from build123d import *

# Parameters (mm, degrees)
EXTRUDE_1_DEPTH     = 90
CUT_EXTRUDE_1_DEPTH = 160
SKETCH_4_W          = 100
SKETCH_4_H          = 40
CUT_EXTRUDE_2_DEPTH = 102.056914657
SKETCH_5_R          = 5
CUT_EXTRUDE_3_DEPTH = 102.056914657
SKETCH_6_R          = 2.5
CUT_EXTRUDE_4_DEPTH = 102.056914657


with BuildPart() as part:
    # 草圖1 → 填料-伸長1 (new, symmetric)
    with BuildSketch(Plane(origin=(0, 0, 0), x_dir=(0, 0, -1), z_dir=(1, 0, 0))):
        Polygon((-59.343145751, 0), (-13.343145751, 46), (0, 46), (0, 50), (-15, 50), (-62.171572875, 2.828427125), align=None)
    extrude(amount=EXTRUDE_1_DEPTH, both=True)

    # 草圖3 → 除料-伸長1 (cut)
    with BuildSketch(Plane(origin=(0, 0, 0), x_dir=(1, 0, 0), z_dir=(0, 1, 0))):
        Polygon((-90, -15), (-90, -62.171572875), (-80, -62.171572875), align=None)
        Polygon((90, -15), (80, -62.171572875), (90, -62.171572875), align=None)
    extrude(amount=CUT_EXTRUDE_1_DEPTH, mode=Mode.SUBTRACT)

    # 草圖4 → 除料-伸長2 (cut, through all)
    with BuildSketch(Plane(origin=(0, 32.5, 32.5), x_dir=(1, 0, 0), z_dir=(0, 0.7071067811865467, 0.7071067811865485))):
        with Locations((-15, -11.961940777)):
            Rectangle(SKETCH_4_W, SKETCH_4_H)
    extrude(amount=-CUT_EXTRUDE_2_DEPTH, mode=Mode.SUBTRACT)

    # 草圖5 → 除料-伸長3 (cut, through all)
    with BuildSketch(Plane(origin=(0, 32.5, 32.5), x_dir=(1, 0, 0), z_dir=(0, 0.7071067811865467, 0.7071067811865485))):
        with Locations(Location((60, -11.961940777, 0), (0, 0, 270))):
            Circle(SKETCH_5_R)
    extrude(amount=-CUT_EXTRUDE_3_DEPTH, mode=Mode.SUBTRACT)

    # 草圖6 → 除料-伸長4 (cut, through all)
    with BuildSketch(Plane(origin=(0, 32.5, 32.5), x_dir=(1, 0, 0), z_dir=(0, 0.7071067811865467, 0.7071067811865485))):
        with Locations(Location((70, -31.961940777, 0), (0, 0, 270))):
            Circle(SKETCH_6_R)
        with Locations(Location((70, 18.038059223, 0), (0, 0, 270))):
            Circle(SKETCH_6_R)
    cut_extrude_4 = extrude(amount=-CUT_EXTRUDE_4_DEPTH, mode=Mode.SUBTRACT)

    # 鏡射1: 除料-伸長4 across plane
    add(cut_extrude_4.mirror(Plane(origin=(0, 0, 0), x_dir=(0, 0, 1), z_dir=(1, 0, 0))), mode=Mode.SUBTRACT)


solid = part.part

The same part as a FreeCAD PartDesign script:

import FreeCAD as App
import Part
import Sketcher

V = App.Vector
Q = App.Units.Quantity


def add_polygon(sketch, points):
    """Adds a closed chain of lines whose ends are joined by coincident constraints."""
    first, n = sketch.GeometryCount, len(points)
    for a, b in zip(points, points[1:] + points[:1]):
        sketch.addGeometry(Part.LineSegment(App.Vector(*a, 0), App.Vector(*b, 0)), False)
    for i in range(n):
        sketch.addConstraint(Sketcher.Constraint("Coincident", first + i, 2, first + (i + 1) % n, 1))

doc = App.newDocument("Part")
params = doc.addObject("Spreadsheet::Sheet", "Params")
for row, (alias, value) in enumerate([
    ("sketch1_width", "4 mm"),
    ("sketch1_height", "15 mm"),
    ("sketch1_length", "4 mm"),
    ("pad1_length", "180 mm"),
    ("sketch2_width", "10 mm"),
    ("pocket1_length", "160 mm"),
    ("sketch3_width", "100 mm"),
    ("sketch3_height", "40 mm"),
    ("sketch4_diameter", "10 mm"),
    ("sketch5_diameter", "5 mm"),
], start=1):
    params.set(f"A{row}", alias)
    params.set(f"B{row}", "=" + value)
    params.setAlias(f"B{row}", alias)

body = doc.addObject("PartDesign::Body", "Body")

# Sketch on YZ plane
sketch1 = body.newObject("Sketcher::SketchObject", "Sketch")
sketch1.AttachmentSupport = (doc.getObject("YZ_Plane"), [""])
sketch1.MapMode = "FlatFace"
add_polygon(sketch1, [(0, 59.3), (46, 13.3), (46, 0), (50, 0), (50, 15), (2.8, 62.2)])  # lines 0-5
sketch1.addConstraint([
    Sketcher.Constraint("Vertical", 1),
    Sketcher.Constraint("Horizontal", 2),
    Sketcher.Constraint("Vertical", 3),
    Sketcher.Constraint("PointOnObject", 1, 2, -1),
    Sketcher.Constraint("PointOnObject", 5, 2, -2),
    Sketcher.Constraint("Parallel", 0, 4),
    Sketcher.Constraint("Perpendicular", 4, 5),
    Sketcher.Constraint("DistanceX", 2, 1, 2, 2, Q("4 mm")),
    Sketcher.Constraint("DistanceY", 3, 1, 3, 2, Q("15 mm")),
    Sketcher.Constraint("Angle", 0, Q("-45 deg")),
    Sketcher.Constraint("Distance", 5, Q("4 mm")),
    Sketcher.Constraint("DistanceX", -1, 1, 0, 2, Q("46 mm")),
])
sketch1.setExpression("Constraints[13]", "Params.sketch1_width")
sketch1.setExpression("Constraints[14]", "Params.sketch1_height")
sketch1.setExpression("Constraints[16]", "Params.sketch1_length")
pad1 = body.newObject("PartDesign::Pad", "Pad")
pad1.Profile = sketch1
pad1.setExpression("Length", "Params.pad1_length")
pad1.Midplane = True

# Sketch on XZ plane
sketch2 = body.newObject("Sketcher::SketchObject", "Sketch001")
sketch2.AttachmentSupport = (doc.getObject("XZ_Plane"), [""])
sketch2.MapMode = "FlatFace"
add_polygon(sketch2, [(-90, 15), (-90, 62), (-80, 62)])  # lines 0-2
add_polygon(sketch2, [(90, 15), (80, 62), (90, 62)])  # lines 3-5
sketch2.addConstraint([
    Sketcher.Constraint("Vertical", 0),
    Sketcher.Constraint("Horizontal", 1),
    Sketcher.Constraint("Horizontal", 4),
    Sketcher.Constraint("Vertical", 5),
    Sketcher.Constraint("Symmetric", 1, 2, 3, 2, -2),
    Sketcher.Constraint("Symmetric", 2, 2, 5, 2, -2),
    Sketcher.Constraint("DistanceX", 1, 1, 1, 2, Q("10 mm")),
    Sketcher.Constraint("DistanceX", 0, 2, -1, 1, Q("90 mm")),
    Sketcher.Constraint("DistanceY", -1, 1, 2, 2, Q("15 mm")),
    Sketcher.Constraint("DistanceY", 0, 1, 0, 2, Q("47.171573 mm")),
])
sketch2.setExpression("Constraints[12]", "Params.sketch2_width")
pocket1 = body.newObject("PartDesign::Pocket", "Pocket")
pocket1.Profile = sketch2
pocket1.setExpression("Length", "Params.pocket1_length")

# Sketch on an angled plane
sketch3 = body.newObject("Sketcher::SketchObject", "Sketch002")
sketch3.Placement = App.Placement(V(0, 32.5, 32.5), App.Rotation(V(1, 0, 0), V(0, 0.707106781, -0.707106781), V(0, 0.707106781, 0.707106781), "ZXY"))
add_polygon(sketch3, [(-65, 8), (-65, -32), (35, -32), (35, 8)])  # lines 0-3
sketch3.addConstraint([
    Sketcher.Constraint("Vertical", 0),
    Sketcher.Constraint("Horizontal", 1),
    Sketcher.Constraint("Vertical", 2),
    Sketcher.Constraint("Horizontal", 3),
    Sketcher.Constraint("DistanceX", 1, 1, 1, 2, Q("100 mm")),
    Sketcher.Constraint("DistanceY", 0, 2, 0, 1, Q("40 mm")),
    Sketcher.Constraint("DistanceX", 0, 2, -1, 1, Q("65 mm")),
    Sketcher.Constraint("DistanceY", 0, 2, -1, 1, Q("31.961941 mm")),
])
sketch3.setExpression("Constraints[8]", "Params.sketch3_width")
sketch3.setExpression("Constraints[9]", "Params.sketch3_height")
pocket2 = body.newObject("PartDesign::Pocket", "Pocket001")
pocket2.Profile = sketch3
pocket2.Type = "ThroughAll"

# Sketch on an angled plane
sketch4 = body.newObject("Sketcher::SketchObject", "Sketch003")
sketch4.Placement = App.Placement(V(0, 32.5, 32.5), App.Rotation(V(1, 0, 0), V(0, 0.707106781, -0.707106781), V(0, 0.707106781, 0.707106781), "ZXY"))
sketch4.addGeometry(Part.Circle(V(60, -12, 0), V(0, 0, 1), 5), False)
sketch4.addConstraint([
    Sketcher.Constraint("Diameter", 0, Q("10 mm")),
    Sketcher.Constraint("DistanceX", -1, 1, 0, 3, Q("60 mm")),
    Sketcher.Constraint("DistanceY", 0, 3, -1, 1, Q("11.961941 mm")),
])
sketch4.setExpression("Constraints[0]", "Params.sketch4_diameter")
pocket3 = body.newObject("PartDesign::Pocket", "Pocket002")
pocket3.Profile = sketch4
pocket3.Type = "ThroughAll"

# Sketch on an angled plane
sketch5 = body.newObject("Sketcher::SketchObject", "Sketch004")
sketch5.Placement = App.Placement(V(0, 32.5, 32.5), App.Rotation(V(1, 0, 0), V(0, 0.707106781, -0.707106781), V(0, 0.707106781, 0.707106781), "ZXY"))
sketch5.addGeometry([
    Part.Circle(V(70, -32, 0), V(0, 0, 1), 2.5),
    Part.Circle(V(70, 18, 0), V(0, 0, 1), 2.5),
], False)
sketch5.addConstraint([
    Sketcher.Constraint("Equal", 0, 1),
    Sketcher.Constraint("Vertical", 0, 3, 1, 3),
    Sketcher.Constraint("Diameter", 0, Q("5 mm")),
    Sketcher.Constraint("DistanceX", -1, 1, 0, 3, Q("70 mm")),
    Sketcher.Constraint("DistanceY", 0, 3, 1, 3, Q("50 mm")),
    Sketcher.Constraint("DistanceY", 0, 3, -1, 1, Q("31.961941 mm")),
])
sketch5.setExpression("Constraints[2]", "Params.sketch5_diameter")
pocket4 = body.newObject("PartDesign::Pocket", "Pocket003")
pocket4.Profile = sketch5
pocket4.Type = "ThroughAll"
doc.recompute()

mirrored = body.newObject("PartDesign::Mirrored", "Mirrored")
mirrored.Originals = [pocket4]
mirrored.MirrorPlane = (doc.getObject("YZ_Plane"), [""])
body.Tip = mirrored

doc.recompute()
